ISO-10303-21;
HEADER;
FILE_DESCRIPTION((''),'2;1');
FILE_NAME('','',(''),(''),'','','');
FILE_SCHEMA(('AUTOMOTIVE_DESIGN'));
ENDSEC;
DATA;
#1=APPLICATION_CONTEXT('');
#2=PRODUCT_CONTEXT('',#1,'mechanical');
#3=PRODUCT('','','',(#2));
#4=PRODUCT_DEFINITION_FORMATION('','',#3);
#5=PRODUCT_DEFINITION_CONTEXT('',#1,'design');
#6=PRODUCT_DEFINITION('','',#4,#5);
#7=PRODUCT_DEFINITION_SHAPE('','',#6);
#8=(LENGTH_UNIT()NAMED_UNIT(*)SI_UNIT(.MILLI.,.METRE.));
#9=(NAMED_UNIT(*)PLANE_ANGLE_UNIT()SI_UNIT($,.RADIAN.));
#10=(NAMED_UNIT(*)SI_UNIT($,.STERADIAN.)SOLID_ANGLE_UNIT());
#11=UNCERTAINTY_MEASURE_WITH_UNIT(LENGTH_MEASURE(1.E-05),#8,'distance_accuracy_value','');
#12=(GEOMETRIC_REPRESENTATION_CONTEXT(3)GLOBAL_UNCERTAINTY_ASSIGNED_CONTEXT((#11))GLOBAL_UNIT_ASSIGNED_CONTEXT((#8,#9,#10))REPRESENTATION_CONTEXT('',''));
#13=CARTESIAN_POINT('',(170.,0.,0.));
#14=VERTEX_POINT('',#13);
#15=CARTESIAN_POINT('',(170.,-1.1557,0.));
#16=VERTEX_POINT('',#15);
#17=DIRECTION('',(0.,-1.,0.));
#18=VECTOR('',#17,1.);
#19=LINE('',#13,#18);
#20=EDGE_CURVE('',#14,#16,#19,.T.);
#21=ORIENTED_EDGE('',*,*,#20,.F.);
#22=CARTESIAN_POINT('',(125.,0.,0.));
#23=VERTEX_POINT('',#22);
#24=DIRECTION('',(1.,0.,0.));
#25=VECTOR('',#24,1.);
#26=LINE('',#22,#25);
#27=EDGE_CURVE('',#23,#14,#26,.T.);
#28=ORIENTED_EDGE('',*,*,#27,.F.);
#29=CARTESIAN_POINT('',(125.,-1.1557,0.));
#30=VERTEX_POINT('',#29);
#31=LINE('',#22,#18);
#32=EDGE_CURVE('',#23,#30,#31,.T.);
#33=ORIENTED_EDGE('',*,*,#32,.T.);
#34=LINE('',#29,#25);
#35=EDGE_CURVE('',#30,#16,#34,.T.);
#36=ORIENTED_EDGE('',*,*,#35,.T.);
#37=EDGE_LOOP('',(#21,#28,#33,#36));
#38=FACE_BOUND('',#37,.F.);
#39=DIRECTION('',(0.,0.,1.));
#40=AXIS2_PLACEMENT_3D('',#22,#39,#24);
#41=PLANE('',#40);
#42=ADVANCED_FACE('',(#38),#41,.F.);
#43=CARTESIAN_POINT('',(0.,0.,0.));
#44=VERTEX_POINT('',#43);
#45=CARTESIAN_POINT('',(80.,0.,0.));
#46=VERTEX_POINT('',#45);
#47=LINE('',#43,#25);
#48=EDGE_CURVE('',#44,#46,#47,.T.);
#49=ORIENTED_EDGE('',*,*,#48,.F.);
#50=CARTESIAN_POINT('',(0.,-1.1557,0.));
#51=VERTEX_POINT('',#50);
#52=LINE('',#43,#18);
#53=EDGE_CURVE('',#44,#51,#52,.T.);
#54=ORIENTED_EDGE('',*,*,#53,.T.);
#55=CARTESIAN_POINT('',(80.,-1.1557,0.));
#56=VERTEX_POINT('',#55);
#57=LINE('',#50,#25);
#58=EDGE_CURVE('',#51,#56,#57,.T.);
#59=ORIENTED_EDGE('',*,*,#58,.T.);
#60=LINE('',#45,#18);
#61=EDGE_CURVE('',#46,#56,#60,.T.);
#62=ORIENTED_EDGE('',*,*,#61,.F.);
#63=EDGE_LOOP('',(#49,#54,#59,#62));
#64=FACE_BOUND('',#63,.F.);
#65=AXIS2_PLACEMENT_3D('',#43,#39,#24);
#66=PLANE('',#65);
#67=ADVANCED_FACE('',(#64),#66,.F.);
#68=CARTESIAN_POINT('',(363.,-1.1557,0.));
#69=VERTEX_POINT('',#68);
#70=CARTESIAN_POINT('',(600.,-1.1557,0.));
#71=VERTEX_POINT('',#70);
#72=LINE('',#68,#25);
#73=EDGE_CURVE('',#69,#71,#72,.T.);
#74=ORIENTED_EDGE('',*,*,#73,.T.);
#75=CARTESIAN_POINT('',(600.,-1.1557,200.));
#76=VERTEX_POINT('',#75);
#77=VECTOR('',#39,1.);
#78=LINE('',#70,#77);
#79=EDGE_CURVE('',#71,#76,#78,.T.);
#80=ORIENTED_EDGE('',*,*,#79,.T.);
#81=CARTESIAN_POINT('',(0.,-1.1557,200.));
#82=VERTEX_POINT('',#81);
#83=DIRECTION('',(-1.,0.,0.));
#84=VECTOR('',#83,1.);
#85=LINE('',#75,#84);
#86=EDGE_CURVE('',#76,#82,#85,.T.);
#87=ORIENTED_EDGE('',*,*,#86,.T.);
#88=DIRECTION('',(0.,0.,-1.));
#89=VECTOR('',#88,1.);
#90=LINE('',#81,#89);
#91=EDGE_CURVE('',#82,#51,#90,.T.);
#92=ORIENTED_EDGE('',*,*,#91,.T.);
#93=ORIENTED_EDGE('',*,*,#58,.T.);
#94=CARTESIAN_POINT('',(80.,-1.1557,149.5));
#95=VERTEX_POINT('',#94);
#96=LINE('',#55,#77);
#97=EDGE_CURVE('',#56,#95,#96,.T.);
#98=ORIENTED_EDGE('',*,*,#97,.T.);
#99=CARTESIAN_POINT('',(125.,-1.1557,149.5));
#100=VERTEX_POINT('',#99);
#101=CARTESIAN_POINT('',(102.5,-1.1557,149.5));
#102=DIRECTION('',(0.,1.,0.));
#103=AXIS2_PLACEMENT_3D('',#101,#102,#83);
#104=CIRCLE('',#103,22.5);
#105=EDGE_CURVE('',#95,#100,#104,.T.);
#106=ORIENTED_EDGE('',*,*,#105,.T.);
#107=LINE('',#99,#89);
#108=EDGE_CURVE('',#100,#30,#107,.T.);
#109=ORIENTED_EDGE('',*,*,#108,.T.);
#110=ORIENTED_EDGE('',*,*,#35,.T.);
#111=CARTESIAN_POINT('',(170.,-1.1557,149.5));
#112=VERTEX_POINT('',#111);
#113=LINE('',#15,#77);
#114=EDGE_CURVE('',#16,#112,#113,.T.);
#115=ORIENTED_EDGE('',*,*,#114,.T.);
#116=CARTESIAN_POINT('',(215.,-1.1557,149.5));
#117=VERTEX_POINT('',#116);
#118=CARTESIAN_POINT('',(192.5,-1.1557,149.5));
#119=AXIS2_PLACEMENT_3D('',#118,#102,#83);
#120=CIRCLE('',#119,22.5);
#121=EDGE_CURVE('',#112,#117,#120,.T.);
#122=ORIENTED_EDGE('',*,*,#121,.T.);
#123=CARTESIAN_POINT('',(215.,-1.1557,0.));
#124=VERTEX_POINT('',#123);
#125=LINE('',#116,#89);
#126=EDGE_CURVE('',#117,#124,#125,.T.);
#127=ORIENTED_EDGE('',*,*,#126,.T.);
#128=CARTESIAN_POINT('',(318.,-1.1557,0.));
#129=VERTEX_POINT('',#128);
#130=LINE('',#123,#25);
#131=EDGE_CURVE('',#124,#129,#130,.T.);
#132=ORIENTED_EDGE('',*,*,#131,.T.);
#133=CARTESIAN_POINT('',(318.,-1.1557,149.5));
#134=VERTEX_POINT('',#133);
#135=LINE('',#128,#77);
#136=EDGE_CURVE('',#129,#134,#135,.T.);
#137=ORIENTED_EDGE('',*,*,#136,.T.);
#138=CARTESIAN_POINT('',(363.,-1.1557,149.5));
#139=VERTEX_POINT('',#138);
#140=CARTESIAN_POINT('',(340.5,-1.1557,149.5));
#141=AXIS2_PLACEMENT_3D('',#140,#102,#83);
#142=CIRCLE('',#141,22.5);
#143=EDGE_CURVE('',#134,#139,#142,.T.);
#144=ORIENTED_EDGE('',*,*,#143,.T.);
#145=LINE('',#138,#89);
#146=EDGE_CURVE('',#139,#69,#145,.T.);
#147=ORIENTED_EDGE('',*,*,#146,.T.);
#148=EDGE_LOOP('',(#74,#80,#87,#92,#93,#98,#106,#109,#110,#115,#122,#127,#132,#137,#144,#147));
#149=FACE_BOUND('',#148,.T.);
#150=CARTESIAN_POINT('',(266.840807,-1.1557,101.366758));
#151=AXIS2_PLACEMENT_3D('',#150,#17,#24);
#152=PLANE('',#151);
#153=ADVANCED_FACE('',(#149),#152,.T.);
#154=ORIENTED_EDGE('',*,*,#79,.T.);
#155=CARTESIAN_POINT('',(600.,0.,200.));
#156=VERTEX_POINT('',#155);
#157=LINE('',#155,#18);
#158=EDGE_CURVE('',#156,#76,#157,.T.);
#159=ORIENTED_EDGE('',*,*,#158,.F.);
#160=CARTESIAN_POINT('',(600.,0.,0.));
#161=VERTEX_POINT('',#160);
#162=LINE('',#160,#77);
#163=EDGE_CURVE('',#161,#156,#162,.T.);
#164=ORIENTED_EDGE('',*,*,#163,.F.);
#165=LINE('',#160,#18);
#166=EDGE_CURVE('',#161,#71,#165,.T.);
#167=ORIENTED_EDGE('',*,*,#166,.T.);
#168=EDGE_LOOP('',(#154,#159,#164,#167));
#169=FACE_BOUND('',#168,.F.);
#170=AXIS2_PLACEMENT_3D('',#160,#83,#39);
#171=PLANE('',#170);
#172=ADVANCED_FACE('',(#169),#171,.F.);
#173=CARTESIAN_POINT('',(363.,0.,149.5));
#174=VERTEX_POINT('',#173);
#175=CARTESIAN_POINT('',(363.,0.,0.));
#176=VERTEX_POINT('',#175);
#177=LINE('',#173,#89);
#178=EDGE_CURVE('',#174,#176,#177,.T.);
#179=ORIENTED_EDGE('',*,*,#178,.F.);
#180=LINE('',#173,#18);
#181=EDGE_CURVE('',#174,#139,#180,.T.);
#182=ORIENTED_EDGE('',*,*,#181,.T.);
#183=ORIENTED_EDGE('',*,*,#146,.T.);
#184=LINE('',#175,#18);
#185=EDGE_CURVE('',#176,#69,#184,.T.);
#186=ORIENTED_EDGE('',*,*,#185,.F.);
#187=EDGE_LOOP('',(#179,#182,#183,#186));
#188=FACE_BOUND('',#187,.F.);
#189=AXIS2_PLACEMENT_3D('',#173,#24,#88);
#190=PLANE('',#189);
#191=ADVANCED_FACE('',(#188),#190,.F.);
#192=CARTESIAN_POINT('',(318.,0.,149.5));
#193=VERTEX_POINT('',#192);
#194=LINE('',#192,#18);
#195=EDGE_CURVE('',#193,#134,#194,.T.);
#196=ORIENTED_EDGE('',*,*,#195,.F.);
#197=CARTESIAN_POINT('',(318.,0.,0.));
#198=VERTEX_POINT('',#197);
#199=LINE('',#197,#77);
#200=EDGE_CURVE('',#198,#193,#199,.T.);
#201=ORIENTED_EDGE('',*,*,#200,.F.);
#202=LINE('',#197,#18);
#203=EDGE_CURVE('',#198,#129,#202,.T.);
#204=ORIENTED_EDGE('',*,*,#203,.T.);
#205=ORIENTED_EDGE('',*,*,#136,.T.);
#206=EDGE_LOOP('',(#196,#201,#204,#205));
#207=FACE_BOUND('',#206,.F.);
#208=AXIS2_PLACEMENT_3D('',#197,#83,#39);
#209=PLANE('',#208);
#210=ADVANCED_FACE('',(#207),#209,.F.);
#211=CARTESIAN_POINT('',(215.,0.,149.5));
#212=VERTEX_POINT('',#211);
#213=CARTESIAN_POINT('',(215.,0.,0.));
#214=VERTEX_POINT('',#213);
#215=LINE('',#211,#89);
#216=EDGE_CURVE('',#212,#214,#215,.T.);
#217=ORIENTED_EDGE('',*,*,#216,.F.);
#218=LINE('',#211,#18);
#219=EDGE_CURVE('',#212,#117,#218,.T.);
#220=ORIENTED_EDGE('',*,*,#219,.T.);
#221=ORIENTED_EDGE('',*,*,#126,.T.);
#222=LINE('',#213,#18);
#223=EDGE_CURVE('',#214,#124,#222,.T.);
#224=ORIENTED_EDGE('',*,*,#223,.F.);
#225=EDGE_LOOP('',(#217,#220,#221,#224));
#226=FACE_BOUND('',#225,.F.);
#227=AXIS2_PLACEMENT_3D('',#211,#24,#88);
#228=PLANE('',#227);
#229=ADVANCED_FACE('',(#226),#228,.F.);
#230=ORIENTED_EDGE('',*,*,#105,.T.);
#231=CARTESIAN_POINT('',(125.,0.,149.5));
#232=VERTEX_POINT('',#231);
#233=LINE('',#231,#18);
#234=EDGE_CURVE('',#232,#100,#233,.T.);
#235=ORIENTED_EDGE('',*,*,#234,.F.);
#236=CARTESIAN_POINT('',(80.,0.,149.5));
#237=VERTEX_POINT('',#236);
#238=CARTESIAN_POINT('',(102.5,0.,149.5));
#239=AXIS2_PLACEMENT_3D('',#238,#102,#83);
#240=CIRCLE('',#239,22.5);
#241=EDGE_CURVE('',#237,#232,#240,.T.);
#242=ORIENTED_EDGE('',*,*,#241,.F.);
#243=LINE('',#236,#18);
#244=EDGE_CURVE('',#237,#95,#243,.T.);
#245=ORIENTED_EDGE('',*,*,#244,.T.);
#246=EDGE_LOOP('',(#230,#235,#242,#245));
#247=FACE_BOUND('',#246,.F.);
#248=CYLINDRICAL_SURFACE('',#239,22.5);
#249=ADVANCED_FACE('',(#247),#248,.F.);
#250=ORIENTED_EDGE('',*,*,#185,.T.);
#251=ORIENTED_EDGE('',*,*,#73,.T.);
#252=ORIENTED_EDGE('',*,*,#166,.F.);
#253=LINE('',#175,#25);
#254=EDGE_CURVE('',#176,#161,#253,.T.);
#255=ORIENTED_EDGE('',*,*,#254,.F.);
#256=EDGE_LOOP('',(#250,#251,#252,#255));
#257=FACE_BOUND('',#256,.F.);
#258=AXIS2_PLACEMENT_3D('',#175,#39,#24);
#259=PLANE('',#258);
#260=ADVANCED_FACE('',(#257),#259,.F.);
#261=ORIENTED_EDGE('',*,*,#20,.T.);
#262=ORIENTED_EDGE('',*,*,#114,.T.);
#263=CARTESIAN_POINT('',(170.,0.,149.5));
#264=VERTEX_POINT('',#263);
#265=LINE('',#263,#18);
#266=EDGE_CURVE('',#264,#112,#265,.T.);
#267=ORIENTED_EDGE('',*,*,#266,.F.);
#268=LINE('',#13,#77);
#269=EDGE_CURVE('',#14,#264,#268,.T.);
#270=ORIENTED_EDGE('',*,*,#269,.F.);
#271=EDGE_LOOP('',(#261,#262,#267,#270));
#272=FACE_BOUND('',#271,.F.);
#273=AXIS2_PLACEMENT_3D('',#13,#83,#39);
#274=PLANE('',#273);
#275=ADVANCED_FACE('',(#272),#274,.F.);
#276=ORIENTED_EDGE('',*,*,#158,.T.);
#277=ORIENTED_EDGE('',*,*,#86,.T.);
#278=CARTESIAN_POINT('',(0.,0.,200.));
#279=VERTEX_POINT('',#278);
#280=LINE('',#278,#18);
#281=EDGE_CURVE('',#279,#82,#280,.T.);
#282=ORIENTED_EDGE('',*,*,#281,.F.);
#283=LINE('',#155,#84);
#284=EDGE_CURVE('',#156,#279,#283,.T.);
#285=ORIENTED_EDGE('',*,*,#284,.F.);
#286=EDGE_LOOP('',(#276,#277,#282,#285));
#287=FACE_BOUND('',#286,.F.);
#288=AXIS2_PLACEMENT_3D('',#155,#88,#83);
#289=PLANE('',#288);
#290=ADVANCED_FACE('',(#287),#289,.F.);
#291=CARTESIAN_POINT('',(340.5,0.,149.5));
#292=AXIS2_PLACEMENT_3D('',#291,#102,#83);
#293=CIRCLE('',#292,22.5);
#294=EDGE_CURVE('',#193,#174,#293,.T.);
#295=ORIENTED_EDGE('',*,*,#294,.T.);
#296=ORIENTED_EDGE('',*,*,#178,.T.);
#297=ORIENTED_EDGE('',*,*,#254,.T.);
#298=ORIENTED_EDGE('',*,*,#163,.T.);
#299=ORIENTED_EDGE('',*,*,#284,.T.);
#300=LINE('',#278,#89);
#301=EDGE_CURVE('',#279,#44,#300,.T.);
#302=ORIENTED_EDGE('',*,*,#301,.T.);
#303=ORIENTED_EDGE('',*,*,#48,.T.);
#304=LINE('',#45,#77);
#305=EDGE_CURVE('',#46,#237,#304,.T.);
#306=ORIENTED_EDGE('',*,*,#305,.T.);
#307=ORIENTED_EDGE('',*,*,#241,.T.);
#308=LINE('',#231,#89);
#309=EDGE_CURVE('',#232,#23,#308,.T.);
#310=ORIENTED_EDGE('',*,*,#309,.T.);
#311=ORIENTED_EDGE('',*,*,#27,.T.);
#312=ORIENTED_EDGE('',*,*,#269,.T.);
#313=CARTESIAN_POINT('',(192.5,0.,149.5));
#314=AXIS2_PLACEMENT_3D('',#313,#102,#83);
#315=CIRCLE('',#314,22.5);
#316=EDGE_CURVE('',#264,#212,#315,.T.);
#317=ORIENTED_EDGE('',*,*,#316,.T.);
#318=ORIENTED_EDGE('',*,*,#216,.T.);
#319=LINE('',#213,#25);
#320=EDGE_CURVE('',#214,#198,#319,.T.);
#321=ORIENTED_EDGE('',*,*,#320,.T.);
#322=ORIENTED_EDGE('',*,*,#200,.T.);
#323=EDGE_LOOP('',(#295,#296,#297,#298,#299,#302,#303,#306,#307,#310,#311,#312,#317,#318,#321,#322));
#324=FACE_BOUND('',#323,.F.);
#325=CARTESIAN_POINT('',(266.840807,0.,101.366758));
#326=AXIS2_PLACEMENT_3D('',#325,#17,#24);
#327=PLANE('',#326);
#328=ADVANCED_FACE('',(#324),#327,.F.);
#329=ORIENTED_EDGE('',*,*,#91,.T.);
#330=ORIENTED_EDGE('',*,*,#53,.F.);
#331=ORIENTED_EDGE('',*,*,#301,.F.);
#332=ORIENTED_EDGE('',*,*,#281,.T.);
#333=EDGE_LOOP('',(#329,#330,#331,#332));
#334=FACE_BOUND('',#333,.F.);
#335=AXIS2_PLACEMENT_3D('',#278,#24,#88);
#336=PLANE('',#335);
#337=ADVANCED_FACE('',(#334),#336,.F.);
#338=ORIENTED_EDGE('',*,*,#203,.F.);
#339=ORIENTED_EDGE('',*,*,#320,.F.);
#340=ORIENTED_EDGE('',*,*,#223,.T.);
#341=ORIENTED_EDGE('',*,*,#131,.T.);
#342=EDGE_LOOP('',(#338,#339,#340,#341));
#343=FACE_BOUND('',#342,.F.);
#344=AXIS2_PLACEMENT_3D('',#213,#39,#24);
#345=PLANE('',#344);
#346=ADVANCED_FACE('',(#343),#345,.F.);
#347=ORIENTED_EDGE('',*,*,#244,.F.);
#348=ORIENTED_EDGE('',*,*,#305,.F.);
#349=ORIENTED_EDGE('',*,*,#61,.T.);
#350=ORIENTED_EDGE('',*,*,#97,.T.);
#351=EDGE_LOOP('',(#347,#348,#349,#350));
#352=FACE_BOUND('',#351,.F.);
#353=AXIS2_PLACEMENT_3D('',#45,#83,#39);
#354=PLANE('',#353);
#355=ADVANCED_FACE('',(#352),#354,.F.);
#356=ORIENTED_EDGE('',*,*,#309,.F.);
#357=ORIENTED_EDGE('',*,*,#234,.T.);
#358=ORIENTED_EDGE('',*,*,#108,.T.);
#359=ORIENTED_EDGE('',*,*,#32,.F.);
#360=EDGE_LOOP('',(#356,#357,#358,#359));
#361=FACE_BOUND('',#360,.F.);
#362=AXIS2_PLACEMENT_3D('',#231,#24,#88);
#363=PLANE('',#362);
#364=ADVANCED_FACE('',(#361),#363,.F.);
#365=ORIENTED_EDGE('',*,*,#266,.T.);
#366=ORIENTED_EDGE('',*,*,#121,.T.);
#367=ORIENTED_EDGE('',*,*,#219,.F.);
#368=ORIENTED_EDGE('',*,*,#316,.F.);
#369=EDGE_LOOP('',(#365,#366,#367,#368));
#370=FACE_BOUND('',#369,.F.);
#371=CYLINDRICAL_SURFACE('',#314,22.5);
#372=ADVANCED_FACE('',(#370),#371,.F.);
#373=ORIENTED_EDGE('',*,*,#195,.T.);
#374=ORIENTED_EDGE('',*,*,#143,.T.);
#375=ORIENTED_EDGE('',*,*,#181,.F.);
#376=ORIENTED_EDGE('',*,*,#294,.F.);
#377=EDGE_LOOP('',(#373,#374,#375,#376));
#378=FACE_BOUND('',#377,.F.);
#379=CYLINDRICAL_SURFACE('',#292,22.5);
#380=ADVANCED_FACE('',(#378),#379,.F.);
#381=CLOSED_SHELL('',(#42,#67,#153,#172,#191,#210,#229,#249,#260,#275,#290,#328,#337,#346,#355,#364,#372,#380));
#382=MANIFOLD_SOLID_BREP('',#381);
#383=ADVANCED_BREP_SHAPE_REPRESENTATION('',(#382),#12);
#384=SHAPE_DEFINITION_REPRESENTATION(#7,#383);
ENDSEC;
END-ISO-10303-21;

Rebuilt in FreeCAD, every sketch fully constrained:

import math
import FreeCAD as App
import Part
import Sketcher

V = App.Vector

doc = App.newDocument("Part")
body = doc.addObject("PartDesign::Body", "Body")

# Sketch on XZ plane
sketch1 = body.newObject("Sketcher::SketchObject", "Sketch")
sketch1.AttachmentSupport = (doc.getObject("XZ_Plane"), [""])
sketch1.MapMode = "FlatFace"
sketch1.addGeometry([
    Part.LineSegment(V(0, 200, 0), V(0, 0, 0)),  # 0
    Part.LineSegment(V(0, 0, 0), V(80, 0, 0)),  # 1
    Part.LineSegment(V(80, 0, 0), V(80, 150, 0)),  # 2
    Part.ArcOfCircle(Part.Circle(V(102, 150, 0), V(0, 0, 1), 22), math.radians(0), math.radians(180)),  # 3
    Part.LineSegment(V(125, 150, 0), V(125, 0, 0)),  # 4
    Part.LineSegment(V(125, 0, 0), V(170, 0, 0)),  # 5
    Part.LineSegment(V(170, 0, 0), V(170, 150, 0)),  # 6
    Part.ArcOfCircle(Part.Circle(V(192, 150, 0), V(0, 0, 1), 22), math.radians(0), math.radians(180)),  # 7
    Part.LineSegment(V(215, 150, 0), V(215, 0, 0)),  # 8
    Part.LineSegment(V(215, 0, 0), V(318, 0, 0)),  # 9
    Part.LineSegment(V(318, 0, 0), V(318, 150, 0)),  # 10
    Part.ArcOfCircle(Part.Circle(V(340, 150, 0), V(0, 0, 1), 22), math.radians(0), math.radians(180)),  # 11
    Part.LineSegment(V(363, 150, 0), V(363, 0, 0)),  # 12
    Part.LineSegment(V(363, 0, 0), V(600, 0, 0)),  # 13
    Part.LineSegment(V(600, 0, 0), V(600, 200, 0)),  # 14
    Part.LineSegment(V(600, 200, 0), V(0, 200, 0)),  # 15
], False)
sketch1.addConstraint([
    Sketcher.Constraint("Coincident", 0, 2, 1, 1),
    Sketcher.Constraint("Coincident", 1, 2, 2, 1),
    Sketcher.Constraint("Tangent", 2, 2, 3, 2),
    Sketcher.Constraint("Tangent", 3, 1, 4, 1),
    Sketcher.Constraint("Coincident", 4, 2, 5, 1),
    Sketcher.Constraint("Coincident", 5, 2, 6, 1),
    Sketcher.Constraint("Tangent", 6, 2, 7, 2),
    Sketcher.Constraint("Tangent", 7, 1, 8, 1),
    Sketcher.Constraint("Coincident", 8, 2, 9, 1),
    Sketcher.Constraint("Coincident", 9, 2, 10, 1),
    Sketcher.Constraint("Tangent", 10, 2, 11, 2),
    Sketcher.Constraint("Tangent", 11, 1, 12, 1),
    Sketcher.Constraint("Coincident", 12, 2, 13, 1),
    Sketcher.Constraint("Coincident", 13, 2, 14, 1),
    Sketcher.Constraint("Coincident", 14, 2, 15, 1),
    Sketcher.Constraint("Coincident", 15, 2, 0, 1),
    Sketcher.Constraint("Vertical", 0),
    Sketcher.Constraint("Horizontal", 1),
    Sketcher.Constraint("Vertical", 2),
    Sketcher.Constraint("Vertical", 4),
    Sketcher.Constraint("Horizontal", 5),
    Sketcher.Constraint("Vertical", 6),
    Sketcher.Constraint("Vertical", 8),
    Sketcher.Constraint("Horizontal", 9),
    Sketcher.Constraint("Vertical", 10),
    Sketcher.Constraint("Vertical", 12),
    Sketcher.Constraint("Horizontal", 13),
    Sketcher.Constraint("Vertical", 14),
    Sketcher.Constraint("Horizontal", 15),
    Sketcher.Constraint("Coincident", 0, 2, -1, 1),
    Sketcher.Constraint("Equal", 3, 7),
    Sketcher.Constraint("Equal", 7, 11),
    Sketcher.Constraint("PointOnObject", 4, 2, -1),
    Sketcher.Constraint("PointOnObject", 8, 2, -1),
    Sketcher.Constraint("PointOnObject", 12, 2, -1),
    Sketcher.Constraint("Horizontal", 3, 3, 7, 3),
    Sketcher.Constraint("Horizontal", 7, 3, 11, 3),
    Sketcher.Constraint("Radius", 3, 22.5),
    Sketcher.Constraint("DistanceX", 1, 1, 1, 2, 80.0),
    Sketcher.Constraint("DistanceX", 5, 1, 5, 2, 45.0),
    Sketcher.Constraint("DistanceX", 9, 1, 9, 2, 103.0),
    Sketcher.Constraint("DistanceX", 13, 1, 13, 2, 237.0),
    Sketcher.Constraint("DistanceY", 0, 2, 0, 1, 200.0),
    Sketcher.Constraint("DistanceY", 2, 1, 2, 2, 149.5),
])
pad1 = body.newObject("PartDesign::Pad", "Pad")
pad1.Profile = sketch1
pad1.Length = 1.1557

doc.recompute()
